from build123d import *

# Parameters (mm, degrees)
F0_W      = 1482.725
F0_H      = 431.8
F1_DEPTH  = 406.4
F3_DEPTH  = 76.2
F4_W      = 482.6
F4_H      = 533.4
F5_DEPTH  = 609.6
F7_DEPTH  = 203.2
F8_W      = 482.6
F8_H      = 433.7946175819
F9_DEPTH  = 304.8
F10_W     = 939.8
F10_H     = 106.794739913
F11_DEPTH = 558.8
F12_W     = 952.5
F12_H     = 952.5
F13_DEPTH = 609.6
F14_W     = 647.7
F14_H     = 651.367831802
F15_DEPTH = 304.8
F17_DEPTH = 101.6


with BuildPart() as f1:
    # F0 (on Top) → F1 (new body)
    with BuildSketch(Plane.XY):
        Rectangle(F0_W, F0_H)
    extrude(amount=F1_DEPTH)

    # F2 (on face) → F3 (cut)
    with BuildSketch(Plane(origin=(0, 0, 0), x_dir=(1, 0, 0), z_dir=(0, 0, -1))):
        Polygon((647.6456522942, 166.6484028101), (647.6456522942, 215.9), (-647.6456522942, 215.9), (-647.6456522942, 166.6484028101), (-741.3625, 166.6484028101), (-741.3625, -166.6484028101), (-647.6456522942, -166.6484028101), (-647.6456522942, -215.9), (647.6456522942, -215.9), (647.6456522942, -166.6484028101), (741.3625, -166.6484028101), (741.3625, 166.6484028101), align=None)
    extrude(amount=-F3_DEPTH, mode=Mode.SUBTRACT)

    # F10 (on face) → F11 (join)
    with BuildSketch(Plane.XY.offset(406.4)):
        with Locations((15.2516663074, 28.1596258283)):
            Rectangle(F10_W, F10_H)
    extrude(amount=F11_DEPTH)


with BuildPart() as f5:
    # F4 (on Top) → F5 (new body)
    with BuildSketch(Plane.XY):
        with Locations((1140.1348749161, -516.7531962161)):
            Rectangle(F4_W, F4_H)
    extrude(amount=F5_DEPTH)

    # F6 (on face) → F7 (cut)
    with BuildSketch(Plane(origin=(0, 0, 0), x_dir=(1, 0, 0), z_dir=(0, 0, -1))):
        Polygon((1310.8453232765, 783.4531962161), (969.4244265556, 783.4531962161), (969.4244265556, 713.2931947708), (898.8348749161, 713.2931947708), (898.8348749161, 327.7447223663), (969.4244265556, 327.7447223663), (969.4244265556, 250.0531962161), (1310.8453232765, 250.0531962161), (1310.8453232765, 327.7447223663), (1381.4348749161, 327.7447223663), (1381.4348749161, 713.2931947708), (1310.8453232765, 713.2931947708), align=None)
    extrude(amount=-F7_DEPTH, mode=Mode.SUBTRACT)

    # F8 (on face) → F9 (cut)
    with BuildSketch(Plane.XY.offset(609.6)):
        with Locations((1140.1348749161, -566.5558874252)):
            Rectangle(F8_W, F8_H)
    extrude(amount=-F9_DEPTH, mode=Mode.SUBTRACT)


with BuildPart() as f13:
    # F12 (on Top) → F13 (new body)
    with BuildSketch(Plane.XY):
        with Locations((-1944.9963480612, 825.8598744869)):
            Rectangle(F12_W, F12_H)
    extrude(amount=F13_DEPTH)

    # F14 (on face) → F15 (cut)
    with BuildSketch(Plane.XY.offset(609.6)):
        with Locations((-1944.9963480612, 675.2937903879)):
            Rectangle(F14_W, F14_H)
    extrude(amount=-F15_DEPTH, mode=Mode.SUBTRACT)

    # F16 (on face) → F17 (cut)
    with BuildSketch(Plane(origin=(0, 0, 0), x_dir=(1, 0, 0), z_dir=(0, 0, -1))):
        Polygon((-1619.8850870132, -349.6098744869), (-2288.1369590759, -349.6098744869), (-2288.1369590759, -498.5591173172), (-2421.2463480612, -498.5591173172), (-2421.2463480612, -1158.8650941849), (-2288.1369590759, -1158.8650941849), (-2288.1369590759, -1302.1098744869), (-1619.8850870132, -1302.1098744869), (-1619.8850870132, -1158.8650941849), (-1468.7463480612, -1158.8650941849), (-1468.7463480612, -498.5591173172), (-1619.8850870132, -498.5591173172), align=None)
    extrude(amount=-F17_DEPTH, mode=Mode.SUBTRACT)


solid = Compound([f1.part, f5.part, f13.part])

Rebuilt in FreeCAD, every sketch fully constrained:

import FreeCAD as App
import Part
import Sketcher
Q = App.Units.Quantity

doc = App.newDocument("Part")
params = doc.addObject("Spreadsheet::Sheet", "Params")
for row, (alias, value) in enumerate([
    ("sketch1_height", "17 in"),
    ("sketch1_width", "58.375 in"),
    ("pad1_length", "16 in"),
    ("pocket1_length", "3 in"),
    ("sketch3_width", "37 in"),
    ("pad2_length", "22 in"),
    ("sketch4_width", "19 in"),
    ("sketch4_height", "21 in"),
    ("pad3_length", "24 in"),
    ("pocket2_length", "8 in"),
    ("sketch6_width", "19 in"),
    ("pocket3_length", "12 in"),
    ("sketch7_width", "37.5 in"),
    ("pad4_length", "24 in"),
    ("sketch8_width", "25.5 in"),
    ("pocket4_length", "12 in"),
    ("pocket5_length", "4 in"),
], start=1):
    params.set(f"A{row}", alias)
    params.set(f"B{row}", "=" + value)
    params.setAlias(f"B{row}", alias)

body = doc.addObject("PartDesign::Body", "Body")

# Sketch on XY plane
sketch1 = body.newObject("Sketcher::SketchObject", "Sketch")
sketch1.AttachmentSupport = (doc.getObject("XY_Plane"), [""])
sketch1.MapMode = "FlatFace"
sketch1.addGeometry(Part.LineSegment(App.Vector(-741, 216, 0), App.Vector(-741, -216, 0)), False)
sketch1.addGeometry(Part.LineSegment(App.Vector(-741, -216, 0), App.Vector(741, -216, 0)), False)
sketch1.addGeometry(Part.LineSegment(App.Vector(741, -216, 0), App.Vector(741, 216, 0)), False)
sketch1.addGeometry(Part.LineSegment(App.Vector(741, 216, 0), App.Vector(-741, 216, 0)), False)
sketch1.addConstraint(Sketcher.Constraint("Coincident", 0, 2, 1, 1))
sketch1.addConstraint(Sketcher.Constraint("Coincident", 1, 2, 2, 1))
sketch1.addConstraint(Sketcher.Constraint("Coincident", 2, 2, 3, 1))
sketch1.addConstraint(Sketcher.Constraint("Coincident", 3, 2, 0, 1))
sketch1.addConstraint(Sketcher.Constraint("Vertical", 0))
sketch1.addConstraint(Sketcher.Constraint("Horizontal", 1))
sketch1.addConstraint(Sketcher.Constraint("Vertical", 2))
sketch1.addConstraint(Sketcher.Constraint("Horizontal", 3))
sketch1.addConstraint(Sketcher.Constraint("Symmetric", 0, 2, 2, 2, -1, 1))
sketch1.addConstraint(Sketcher.Constraint("DistanceY", 0, 2, 0, 1, Q("17 in")))
sketch1.addConstraint(Sketcher.Constraint("DistanceX", 1, 1, 1, 2, Q("58.375 in")))
sketch1.setExpression("Constraints[9]", "Params.sketch1_height")
sketch1.setExpression("Constraints[10]", "Params.sketch1_width")
pad1 = body.newObject("PartDesign::Pad", "Pad")
pad1.Profile = sketch1
pad1.setExpression("Length", "Params.pad1_length")

# Sketch on XY plane
sketch2 = body.newObject("Sketcher::SketchObject", "Sketch001")
sketch2.AttachmentSupport = (doc.getObject("XY_Plane"), [""])
sketch2.MapMode = "FlatFace"
sketch2.addGeometry(Part.LineSegment(App.Vector(648, -167, 0), App.Vector(648, -216, 0)), False)
sketch2.addGeometry(Part.LineSegment(App.Vector(648, -216, 0), App.Vector(-648, -216, 0)), False)
sketch2.addGeometry(Part.LineSegment(App.Vector(-648, -216, 0), App.Vector(-648, -167, 0)), False)
sketch2.addGeometry(Part.LineSegment(App.Vector(-648, -167, 0), App.Vector(-741, -167, 0)), False)
sketch2.addGeometry(Part.LineSegment(App.Vector(-741, -167, 0), App.Vector(-741, 167, 0)), False)
sketch2.addGeometry(Part.LineSegment(App.Vector(-741, 167, 0), App.Vector(-648, 167, 0)), False)
sketch2.addGeometry(Part.LineSegment(App.Vector(-648, 167, 0), App.Vector(-648, 216, 0)), False)
sketch2.addGeometry(Part.LineSegment(App.Vector(-648, 216, 0), App.Vector(648, 216, 0)), False)
sketch2.addGeometry(Part.LineSegment(App.Vector(648, 216, 0), App.Vector(648, 167, 0)), False)
sketch2.addGeometry(Part.LineSegment(App.Vector(648, 167, 0), App.Vector(741, 167, 0)), False)
sketch2.addGeometry(Part.LineSegment(App.Vector(741, 167, 0), App.Vector(741, -167, 0)), False)
sketch2.addGeometry(Part.LineSegment(App.Vector(741, -167, 0), App.Vector(648, -167, 0)), False)
sketch2.addConstraint(Sketcher.Constraint("Coincident", 0, 2, 1, 1))
sketch2.addConstraint(Sketcher.Constraint("Coincident", 1, 2, 2, 1))
sketch2.addConstraint(Sketcher.Constraint("Coincident", 2, 2, 3, 1))
sketch2.addConstraint(Sketcher.Constraint("Coincident", 3, 2, 4, 1))
sketch2.addConstraint(Sketcher.Constraint("Coincident", 4, 2, 5, 1))
sketch2.addConstraint(Sketcher.Constraint("Coincident", 5, 2, 6, 1))
sketch2.addConstraint(Sketcher.Constraint("Coincident", 6, 2, 7, 1))
sketch2.addConstraint(Sketcher.Constraint("Coincident", 7, 2, 8, 1))
sketch2.addConstraint(Sketcher.Constraint("Coincident", 8, 2, 9, 1))
sketch2.addConstraint(Sketcher.Constraint("Coincident", 9, 2, 10, 1))
sketch2.addConstraint(Sketcher.Constraint("Coincident", 10, 2, 11, 1))
sketch2.addConstraint(Sketcher.Constraint("Coincident", 11, 2, 0, 1))
sketch2.addConstraint(Sketcher.Constraint("Vertical", 0))
sketch2.addConstraint(Sketcher.Constraint("Horizontal", 1))
sketch2.addConstraint(Sketcher.Constraint("Vertical", 2))
sketch2.addConstraint(Sketcher.Constraint("Horizontal", 3))
sketch2.addConstraint(Sketcher.Constraint("Vertical", 4))
sketch2.addConstraint(Sketcher.Constraint("Horizontal", 5))
sketch2.addConstraint(Sketcher.Constraint("Vertical", 6))
sketch2.addConstraint(Sketcher.Constraint("Horizontal", 7))
sketch2.addConstraint(Sketcher.Constraint("Vertical", 8))
sketch2.addConstraint(Sketcher.Constraint("Horizontal", 9))
sketch2.addConstraint(Sketcher.Constraint("Vertical", 10))
sketch2.addConstraint(Sketcher.Constraint("Horizontal", 11))
sketch2.addConstraint(Sketcher.Constraint("Symmetric", 0, 2, 6, 2, -1, 1))
sketch2.addConstraint(Sketcher.Constraint("Symmetric", 2, 2, 8, 2, -1, 1))
sketch2.addConstraint(Sketcher.Constraint("Symmetric", 4, 2, 10, 2, -1, 1))
sketch2.addConstraint(Sketcher.Constraint("Symmetric", 5, 2, 8, 2, -2))
sketch2.addConstraint(Sketcher.Constraint("DistanceY", 1, 2, 6, 2, Q("17 in")))
sketch2.addConstraint(Sketcher.Constraint("DistanceX", 3, 2, -1, 1, Q("29.1875 in")))
sketch2.addConstraint(Sketcher.Constraint("DistanceX", 1, 2, 1, 1, 1295.291305))
sketch2.addConstraint(Sketcher.Constraint("DistanceY", 0, 2, 0, 1, 49.251597))
pocket1 = body.newObject("PartDesign::Pocket", "Pocket")
pocket1.Profile = sketch2
pocket1.setExpression("Length", "Params.pocket1_length")
pocket1.Reversed = True

# Sketch on XY plane
sketch3 = body.newObject("Sketcher::SketchObject", "Sketch002")
sketch3.AttachmentSupport = (doc.getObject("XY_Plane"), [""])
sketch3.MapMode = "FlatFace"
sketch3.AttachmentOffset = App.Placement(App.Vector(0, 0, 16 * 25.4), App.Rotation())
sketch3.addGeometry(Part.LineSegment(App.Vector(-455, 82, 0), App.Vector(-455, -25, 0)), False)
sketch3.addGeometry(Part.LineSegment(App.Vector(-455, -25, 0), App.Vector(485, -25, 0)), False)
sketch3.addGeometry(Part.LineSegment(App.Vector(485, -25, 0), App.Vector(485, 82, 0)), False)
sketch3.addGeometry(Part.LineSegment(App.Vector(485, 82, 0), App.Vector(-455, 82, 0)), False)
sketch3.addConstraint(Sketcher.Constraint("Coincident", 0, 2, 1, 1))
sketch3.addConstraint(Sketcher.Constraint("Coincident", 1, 2, 2, 1))
sketch3.addConstraint(Sketcher.Constraint("Coincident", 2, 2, 3, 1))
sketch3.addConstraint(Sketcher.Constraint("Coincident", 3, 2, 0, 1))
sketch3.addConstraint(Sketcher.Constraint("Vertical", 0))
sketch3.addConstraint(Sketcher.Constraint("Horizontal", 1))
sketch3.addConstraint(Sketcher.Constraint("Vertical", 2))
sketch3.addConstraint(Sketcher.Constraint("Horizontal", 3))
sketch3.addConstraint(Sketcher.Constraint("DistanceX", 1, 1, 1, 2, Q("37 in")))
sketch3.addConstraint(Sketcher.Constraint("DistanceY", 0, 2, 0, 1, 106.79474))
sketch3.addConstraint(Sketcher.Constraint("DistanceX", 0, 2, -1, 1, 454.648334))
sketch3.addConstraint(Sketcher.Constraint("DistanceY", 0, 2, -1, 1, 25.237744))
sketch3.setExpression("Constraints[8]", "Params.sketch3_width")
pad2 = body.newObject("PartDesign::Pad", "Pad001")
pad2.Profile = sketch3
pad2.setExpression("Length", "Params.pad2_length")
body2 = doc.addObject("PartDesign::Body", "Body001")

# Sketch on XY plane
sketch4 = body2.newObject("Sketcher::SketchObject", "Sketch003")
sketch4.AttachmentSupport = (doc.getObject("XY_Plane001"), [""])
sketch4.MapMode = "FlatFace"
sketch4.addGeometry(Part.LineSegment(App.Vector(899, -250, 0), App.Vector(899, -783, 0)), False)
sketch4.addGeometry(Part.LineSegment(App.Vector(899, -783, 0), App.Vector(1381, -783, 0)), False)
sketch4.addGeometry(Part.LineSegment(App.Vector(1381, -783, 0), App.Vector(1381, -250, 0)), False)
sketch4.addGeometry(Part.LineSegment(App.Vector(1381, -250, 0), App.Vector(899, -250, 0)), False)
sketch4.addConstraint(Sketcher.Constraint("Coincident", 0, 2, 1, 1))
sketch4.addConstraint(Sketcher.Constraint("Coincident", 1, 2, 2, 1))
sketch4.addConstraint(Sketcher.Constraint("Coincident", 2, 2, 3, 1))
sketch4.addConstraint(Sketcher.Constraint("Coincident", 3, 2, 0, 1))
sketch4.addConstraint(Sketcher.Constraint("Vertical", 0))
sketch4.addConstraint(Sketcher.Constraint("Horizontal", 1))
sketch4.addConstraint(Sketcher.Constraint("Vertical", 2))
sketch4.addConstraint(Sketcher.Constraint("Horizontal", 3))
sketch4.addConstraint(Sketcher.Constraint("DistanceX", 1, 1, 1, 2, Q("19 in")))
sketch4.addConstraint(Sketcher.Constraint("DistanceY", 0, 2, 0, 1, Q("21 in")))
sketch4.addConstraint(Sketcher.Constraint("DistanceX", -1, 1, 0, 2, 898.834875))
sketch4.addConstraint(Sketcher.Constraint("DistanceY", 0, 2, -1, 1, 783.453196))
sketch4.setExpression("Constraints[8]", "Params.sketch4_width")
sketch4.setExpression("Constraints[9]", "Params.sketch4_height")
pad3 = body2.newObject("PartDesign::Pad", "Pad002")
pad3.Profile = sketch4
pad3.setExpression("Length", "Params.pad3_length")

# Sketch on XY plane
sketch5 = body2.newObject("Sketcher::SketchObject", "Sketch004")
sketch5.AttachmentSupport = (doc.getObject("XY_Plane001"), [""])
sketch5.MapMode = "FlatFace"
sketch5.addGeometry(Part.LineSegment(App.Vector(1311, -783, 0), App.Vector(969, -783, 0)), False)
sketch5.addGeometry(Part.LineSegment(App.Vector(969, -783, 0), App.Vector(969, -713, 0)), False)
sketch5.addGeometry(Part.LineSegment(App.Vector(969, -713, 0), App.Vector(899, -713, 0)), False)
sketch5.addGeometry(Part.LineSegment(App.Vector(899, -713, 0), App.Vector(899, -328, 0)), False)
sketch5.addGeometry(Part.LineSegment(App.Vector(899, -328, 0), App.Vector(969, -328, 0)), False)
sketch5.addGeometry(Part.LineSegment(App.Vector(969, -328, 0), App.Vector(969, -250, 0)), False)
sketch5.addGeometry(Part.LineSegment(App.Vector(969, -250, 0), App.Vector(1311, -250, 0)), False)
sketch5.addGeometry(Part.LineSegment(App.Vector(1311, -250, 0), App.Vector(1311, -328, 0)), False)
sketch5.addGeometry(Part.LineSegment(App.Vector(1311, -328, 0), App.Vector(1381, -328, 0)), False)
sketch5.addGeometry(Part.LineSegment(App.Vector(1381, -328, 0), App.Vector(1381, -713, 0)), False)
sketch5.addGeometry(Part.LineSegment(App.Vector(1381, -713, 0), App.Vector(1311, -713, 0)), False)
sketch5.addGeometry(Part.LineSegment(App.Vector(1311, -713, 0), App.Vector(1311, -783, 0)), False)
sketch5.addConstraint(Sketcher.Constraint("Coincident", 0, 2, 1, 1))
sketch5.addConstraint(Sketcher.Constraint("Coincident", 1, 2, 2, 1))
sketch5.addConstraint(Sketcher.Constraint("Coincident", 2, 2, 3, 1))
sketch5.addConstraint(Sketcher.Constraint("Coincident", 3, 2, 4, 1))
sketch5.addConstraint(Sketcher.Constraint("Coincident", 4, 2, 5, 1))
sketch5.addConstraint(Sketcher.Constraint("Coincident", 5, 2, 6, 1))
sketch5.addConstraint(Sketcher.Constraint("Coincident", 6, 2, 7, 1))
sketch5.addConstraint(Sketcher.Constraint("Coincident", 7, 2, 8, 1))
sketch5.addConstraint(Sketcher.Constraint("Coincident", 8, 2, 9, 1))
sketch5.addConstraint(Sketcher.Constraint("Coincident", 9, 2, 10, 1))
sketch5.addConstraint(Sketcher.Constraint("Coincident", 10, 2, 11, 1))
sketch5.addConstraint(Sketcher.Constraint("Coincident", 11, 2, 0, 1))
sketch5.addConstraint(Sketcher.Constraint("Horizontal", 0))
sketch5.addConstraint(Sketcher.Constraint("Vertical", 1))
sketch5.addConstraint(Sketcher.Constraint("Horizontal", 2))
sketch5.addConstraint(Sketcher.Constraint("Vertical", 3))
sketch5.addConstraint(Sketcher.Constraint("Horizontal", 4))
sketch5.addConstraint(Sketcher.Constraint("Vertical", 5))
sketch5.addConstraint(Sketcher.Constraint("Horizontal", 6))
sketch5.addConstraint(Sketcher.Constraint("Vertical", 7))
sketch5.addConstraint(Sketcher.Constraint("Horizontal", 8))
sketch5.addConstraint(Sketcher.Constraint("Vertical", 9))
sketch5.addConstraint(Sketcher.Constraint("Horizontal", 10))
sketch5.addConstraint(Sketcher.Constraint("Vertical", 11))
sketch5.addConstraint(Sketcher.Constraint("Horizontal", 4, 2, 7, 2))
sketch5.addConstraint(Sketcher.Constraint("Horizontal", 2, 2, 9, 2))
sketch5.addConstraint(Sketcher.Constraint("Vertical", 1, 2, 4, 2))
sketch5.addConstraint(Sketcher.Constraint("Vertical", 7, 2, 10, 2))
sketch5.addConstraint(Sketcher.Constraint("Equal", 4, 8))
sketch5.addConstraint(Sketcher.Constraint("DistanceY", 0, 2, 5, 2, Q("21 in")))
sketch5.addConstraint(Sketcher.Constraint("DistanceX", 3, 2, 8, 2, Q("19 in")))
sketch5.addConstraint(Sketcher.Constraint("DistanceY", 1, 1, 1, 2, 70.160001))
sketch5.addConstraint(Sketcher.Constraint("DistanceX", 2, 2, 2, 1, 70.589552))
sketch5.addConstraint(Sketcher.Constraint("DistanceY", 3, 1, 3, 2, 385.548472))
sketch5.addConstraint(Sketcher.Constraint("DistanceX", -1, 1, 0, 2, 969.424427))
sketch5.addConstraint(Sketcher.Constraint("DistanceY", 0, 2, -1, 1, 783.453196))
pocket2 = body2.newObject("PartDesign::Pocket", "Pocket001")
pocket2.Profile = sketch5
pocket2.setExpression("Length", "Params.pocket2_length")
pocket2.Reversed = True

# Sketch on XY plane
sketch6 = body2.newObject("Sketcher::SketchObject", "Sketch005")
sketch6.AttachmentSupport = (doc.getObject("XY_Plane001"), [""])
sketch6.MapMode = "FlatFace"
sketch6.AttachmentOffset = App.Placement(App.Vector(0, 0, 24 * 25.4), App.Rotation())
sketch6.addGeometry(Part.LineSegment(App.Vector(899, -350, 0), App.Vector(899, -783, 0)), False)
sketch6.addGeometry(Part.LineSegment(App.Vector(899, -783, 0), App.Vector(1381, -783, 0)), False)
sketch6.addGeometry(Part.LineSegment(App.Vector(1381, -783, 0), App.Vector(1381, -350, 0)), False)
sketch6.addGeometry(Part.LineSegment(App.Vector(1381, -350, 0), App.Vector(899, -350, 0)), False)
sketch6.addConstraint(Sketcher.Constraint("Coincident", 0, 2, 1, 1))
sketch6.addConstraint(Sketcher.Constraint("Coincident", 1, 2, 2, 1))
sketch6.addConstraint(Sketcher.Constraint("Coincident", 2, 2, 3, 1))
sketch6.addConstraint(Sketcher.Constraint("Coincident", 3, 2, 0, 1))
sketch6.addConstraint(Sketcher.Constraint("Vertical", 0))
sketch6.addConstraint(Sketcher.Constraint("Horizontal", 1))
sketch6.addConstraint(Sketcher.Constraint("Vertical", 2))
sketch6.addConstraint(Sketcher.Constraint("Horizontal", 3))
sketch6.addConstraint(Sketcher.Constraint("DistanceX", 1, 1, 1, 2, Q("19 in")))
sketch6.addConstraint(Sketcher.Constraint("DistanceY", 0, 2, 0, 1, 433.794618))
sketch6.addConstraint(Sketcher.Constraint("DistanceY", 2, 2, -1, 1, 349.658579))
sketch6.addConstraint(Sketcher.Constraint("DistanceX", -1, 1, 0, 2, 898.834875))
sketch6.setExpression("Constraints[8]", "Params.sketch6_width")
pocket3 = body2.newObject("PartDesign::Pocket", "Pocket002")
pocket3.Profile = sketch6
pocket3.setExpression("Length", "Params.pocket3_length")
body3 = doc.addObject("PartDesign::Body", "Body002")

# Sketch on XY plane
sketch7 = body3.newObject("Sketcher::SketchObject", "Sketch006")
sketch7.AttachmentSupport = (doc.getObject("XY_Plane002"), [""])
sketch7.MapMode = "FlatFace"
sketch7.addGeometry(Part.LineSegment(App.Vector(-2421, 1302, 0), App.Vector(-2421, 350, 0)), False)
sketch7.addGeometry(Part.LineSegment(App.Vector(-2421, 350, 0), App.Vector(-1469, 350, 0)), False)
sketch7.addGeometry(Part.LineSegment(App.Vector(-1469, 350, 0), App.Vector(-1469, 1302, 0)), False)
sketch7.addGeometry(Part.LineSegment(App.Vector(-1469, 1302, 0), App.Vector(-2421, 1302, 0)), False)
sketch7.addConstraint(Sketcher.Constraint("Coincident", 0, 2, 1, 1))
sketch7.addConstraint(Sketcher.Constraint("Coincident", 1, 2, 2, 1))
sketch7.addConstraint(Sketcher.Constraint("Coincident", 2, 2, 3, 1))
sketch7.addConstraint(Sketcher.Constraint("Coincident", 3, 2, 0, 1))
sketch7.addConstraint(Sketcher.Constraint("Vertical", 0))
sketch7.addConstraint(Sketcher.Constraint("Horizontal", 1))
sketch7.addConstraint(Sketcher.Constraint("Vertical", 2))
sketch7.addConstraint(Sketcher.Constraint("Horizontal", 3))
sketch7.addConstraint(Sketcher.Constraint("Equal", 3, 0))
sketch7.addConstraint(Sketcher.Constraint("DistanceX", 1, 1, 1, 2, Q("37.5 in")))
sketch7.addConstraint(Sketcher.Constraint("DistanceX", 0, 2, -1, 1, 2421.246348))
sketch7.addConstraint(Sketcher.Constraint("DistanceY", -1, 1, 0, 2, 349.609874))
sketch7.setExpression("Constraints[9]", "Params.sketch7_width")
pad4 = body3.newObject("PartDesign::Pad", "Pad003")
pad4.Profile = sketch7
pad4.setExpression("Length", "Params.pad4_length")

# Sketch on XY plane
sketch8 = body3.newObject("Sketcher::SketchObject", "Sketch007")
sketch8.AttachmentSupport = (doc.getObject("XY_Plane002"), [""])
sketch8.MapMode = "FlatFace"
sketch8.AttachmentOffset = App.Placement(App.Vector(0, 0, 24 * 25.4), App.Rotation())
sketch8.addGeometry(Part.LineSegment(App.Vector(-2269, 1001, 0), App.Vector(-2269, 350, 0)), False)
sketch8.addGeometry(Part.LineSegment(App.Vector(-2269, 350, 0), App.Vector(-1621, 350, 0)), False)
sketch8.addGeometry(Part.LineSegment(App.Vector(-1621, 350, 0), App.Vector(-1621, 1001, 0)), False)
sketch8.addGeometry(Part.LineSegment(App.Vector(-1621, 1001, 0), App.Vector(-2269, 1001, 0)), False)
sketch8.addConstraint(Sketcher.Constraint("Coincident", 0, 2, 1, 1))
sketch8.addConstraint(Sketcher.Constraint("Coincident", 1, 2, 2, 1))
sketch8.addConstraint(Sketcher.Constraint("Coincident", 2, 2, 3, 1))
sketch8.addConstraint(Sketcher.Constraint("Coincident", 3, 2, 0, 1))
sketch8.addConstraint(Sketcher.Constraint("Vertical", 0))
sketch8.addConstraint(Sketcher.Constraint("Horizontal", 1))
sketch8.addConstraint(Sketcher.Constraint("Vertical", 2))
sketch8.addConstraint(Sketcher.Constraint("Horizontal", 3))
sketch8.addConstraint(Sketcher.Constraint("DistanceX", 1, 1, 1, 2, Q("25.5 in")))
sketch8.addConstraint(Sketcher.Constraint("DistanceY", 0, 2, 0, 1, 651.367832))
sketch8.addConstraint(Sketcher.Constraint("DistanceX", 0, 2, -1, 1, 2268.846348))
sketch8.addConstraint(Sketcher.Constraint("DistanceY", -1, 1, 0, 2, 349.609874))
sketch8.setExpression("Constraints[8]", "Params.sketch8_width")
pocket4 = body3.newObject("PartDesign::Pocket", "Pocket003")
pocket4.Profile = sketch8
pocket4.setExpression("Length", "Params.pocket4_length")

# Sketch on XY plane
sketch9 = body3.newObject("Sketcher::SketchObject", "Sketch008")
sketch9.AttachmentSupport = (doc.getObject("XY_Plane002"), [""])
sketch9.MapMode = "FlatFace"
sketch9.addGeometry(Part.LineSegment(App.Vector(-1620, 350, 0), App.Vector(-2288, 350, 0)), False)
sketch9.addGeometry(Part.LineSegment(App.Vector(-2288, 350, 0), App.Vector(-2288, 499, 0)), False)
sketch9.addGeometry(Part.LineSegment(App.Vector(-2288, 499, 0), App.Vector(-2421, 499, 0)), False)
sketch9.addGeometry(Part.LineSegment(App.Vector(-2421, 499, 0), App.Vector(-2421, 1159, 0)), False)
sketch9.addGeometry(Part.LineSegment(App.Vector(-2421, 1159, 0), App.Vector(-2288, 1159, 0)), False)
sketch9.addGeometry(Part.LineSegment(App.Vector(-2288, 1159, 0), App.Vector(-2288, 1302, 0)), False)
sketch9.addGeometry(Part.LineSegment(App.Vector(-2288, 1302, 0), App.Vector(-1620, 1302, 0)), False)
sketch9.addGeometry(Part.LineSegment(App.Vector(-1620, 1302, 0), App.Vector(-1620, 1159, 0)), False)
sketch9.addGeometry(Part.LineSegment(App.Vector(-1620, 1159, 0), App.Vector(-1469, 1159, 0)), False)
sketch9.addGeometry(Part.LineSegment(App.Vector(-1469, 1159, 0), App.Vector(-1469, 499, 0)), False)
sketch9.addGeometry(Part.LineSegment(App.Vector(-1469, 499, 0), App.Vector(-1620, 499, 0)), False)
sketch9.addGeometry(Part.LineSegment(App.Vector(-1620, 499, 0), App.Vector(-1620, 350, 0)), False)
sketch9.addConstraint(Sketcher.Constraint("Coincident", 0, 2, 1, 1))
sketch9.addConstraint(Sketcher.Constraint("Coincident", 1, 2, 2, 1))
sketch9.addConstraint(Sketcher.Constraint("Coincident", 2, 2, 3, 1))
sketch9.addConstraint(Sketcher.Constraint("Coincident", 3, 2, 4, 1))
sketch9.addConstraint(Sketcher.Constraint("Coincident", 4, 2, 5, 1))
sketch9.addConstraint(Sketcher.Constraint("Coincident", 5, 2, 6, 1))
sketch9.addConstraint(Sketcher.Constraint("Coincident", 6, 2, 7, 1))
sketch9.addConstraint(Sketcher.Constraint("Coincident", 7, 2, 8, 1))
sketch9.addConstraint(Sketcher.Constraint("Coincident", 8, 2, 9, 1))
sketch9.addConstraint(Sketcher.Constraint("Coincident", 9, 2, 10, 1))
sketch9.addConstraint(Sketcher.Constraint("Coincident", 10, 2, 11, 1))
sketch9.addConstraint(Sketcher.Constraint("Coincident", 11, 2, 0, 1))
sketch9.addConstraint(Sketcher.Constraint("Horizontal", 0))
sketch9.addConstraint(Sketcher.Constraint("Vertical", 1))
sketch9.addConstraint(Sketcher.Constraint("Horizontal", 2))
sketch9.addConstraint(Sketcher.Constraint("Vertical", 3))
sketch9.addConstraint(Sketcher.Constraint("Horizontal", 4))
sketch9.addConstraint(Sketcher.Constraint("Vertical", 5))
sketch9.addConstraint(Sketcher.Constraint("Horizontal", 6))
sketch9.addConstraint(Sketcher.Constraint("Vertical", 7))
sketch9.addConstraint(Sketcher.Constraint("Horizontal", 8))
sketch9.addConstraint(Sketcher.Constraint("Vertical", 9))
sketch9.addConstraint(Sketcher.Constraint("Horizontal", 10))
sketch9.addConstraint(Sketcher.Constraint("Vertical", 11))
sketch9.addConstraint(Sketcher.Constraint("Horizontal", 4, 2, 7, 2))
sketch9.addConstraint(Sketcher.Constraint("Horizontal", 2, 2, 9, 2))
sketch9.addConstraint(Sketcher.Constraint("Vertical", 1, 2, 4, 2))
sketch9.addConstraint(Sketcher.Constraint("Vertical", 7, 2, 10, 2))
sketch9.addConstraint(Sketcher.Constraint("DistanceY", 0, 2, 5, 2, Q("37.5 in")))
sketch9.addConstraint(Sketcher.Constraint("DistanceX", 3, 2, 8, 2, Q("37.5 in")))
sketch9.addConstraint(Sketcher.Constraint("DistanceX", 2, 2, 2, 1, 133.109389))
sketch9.addConstraint(Sketcher.Constraint("DistanceX", 8, 1, 8, 2, 151.138739))
sketch9.addConstraint(Sketcher.Constraint("DistanceY", 5, 1, 5, 2, 143.24478))
sketch9.addConstraint(Sketcher.Constraint("DistanceY", 1, 1, 1, 2, 148.949243))
sketch9.addConstraint(Sketcher.Constraint("DistanceX", 0, 2, -1, 1, 2288.136959))
sketch9.addConstraint(Sketcher.Constraint("DistanceY", -1, 1, 0, 2, 349.609874))
pocket5 = body3.newObject("PartDesign::Pocket", "Pocket004")
pocket5.Profile = sketch9
pocket5.setExpression("Length", "Params.pocket5_length")
pocket5.Reversed = True

doc.recompute()
